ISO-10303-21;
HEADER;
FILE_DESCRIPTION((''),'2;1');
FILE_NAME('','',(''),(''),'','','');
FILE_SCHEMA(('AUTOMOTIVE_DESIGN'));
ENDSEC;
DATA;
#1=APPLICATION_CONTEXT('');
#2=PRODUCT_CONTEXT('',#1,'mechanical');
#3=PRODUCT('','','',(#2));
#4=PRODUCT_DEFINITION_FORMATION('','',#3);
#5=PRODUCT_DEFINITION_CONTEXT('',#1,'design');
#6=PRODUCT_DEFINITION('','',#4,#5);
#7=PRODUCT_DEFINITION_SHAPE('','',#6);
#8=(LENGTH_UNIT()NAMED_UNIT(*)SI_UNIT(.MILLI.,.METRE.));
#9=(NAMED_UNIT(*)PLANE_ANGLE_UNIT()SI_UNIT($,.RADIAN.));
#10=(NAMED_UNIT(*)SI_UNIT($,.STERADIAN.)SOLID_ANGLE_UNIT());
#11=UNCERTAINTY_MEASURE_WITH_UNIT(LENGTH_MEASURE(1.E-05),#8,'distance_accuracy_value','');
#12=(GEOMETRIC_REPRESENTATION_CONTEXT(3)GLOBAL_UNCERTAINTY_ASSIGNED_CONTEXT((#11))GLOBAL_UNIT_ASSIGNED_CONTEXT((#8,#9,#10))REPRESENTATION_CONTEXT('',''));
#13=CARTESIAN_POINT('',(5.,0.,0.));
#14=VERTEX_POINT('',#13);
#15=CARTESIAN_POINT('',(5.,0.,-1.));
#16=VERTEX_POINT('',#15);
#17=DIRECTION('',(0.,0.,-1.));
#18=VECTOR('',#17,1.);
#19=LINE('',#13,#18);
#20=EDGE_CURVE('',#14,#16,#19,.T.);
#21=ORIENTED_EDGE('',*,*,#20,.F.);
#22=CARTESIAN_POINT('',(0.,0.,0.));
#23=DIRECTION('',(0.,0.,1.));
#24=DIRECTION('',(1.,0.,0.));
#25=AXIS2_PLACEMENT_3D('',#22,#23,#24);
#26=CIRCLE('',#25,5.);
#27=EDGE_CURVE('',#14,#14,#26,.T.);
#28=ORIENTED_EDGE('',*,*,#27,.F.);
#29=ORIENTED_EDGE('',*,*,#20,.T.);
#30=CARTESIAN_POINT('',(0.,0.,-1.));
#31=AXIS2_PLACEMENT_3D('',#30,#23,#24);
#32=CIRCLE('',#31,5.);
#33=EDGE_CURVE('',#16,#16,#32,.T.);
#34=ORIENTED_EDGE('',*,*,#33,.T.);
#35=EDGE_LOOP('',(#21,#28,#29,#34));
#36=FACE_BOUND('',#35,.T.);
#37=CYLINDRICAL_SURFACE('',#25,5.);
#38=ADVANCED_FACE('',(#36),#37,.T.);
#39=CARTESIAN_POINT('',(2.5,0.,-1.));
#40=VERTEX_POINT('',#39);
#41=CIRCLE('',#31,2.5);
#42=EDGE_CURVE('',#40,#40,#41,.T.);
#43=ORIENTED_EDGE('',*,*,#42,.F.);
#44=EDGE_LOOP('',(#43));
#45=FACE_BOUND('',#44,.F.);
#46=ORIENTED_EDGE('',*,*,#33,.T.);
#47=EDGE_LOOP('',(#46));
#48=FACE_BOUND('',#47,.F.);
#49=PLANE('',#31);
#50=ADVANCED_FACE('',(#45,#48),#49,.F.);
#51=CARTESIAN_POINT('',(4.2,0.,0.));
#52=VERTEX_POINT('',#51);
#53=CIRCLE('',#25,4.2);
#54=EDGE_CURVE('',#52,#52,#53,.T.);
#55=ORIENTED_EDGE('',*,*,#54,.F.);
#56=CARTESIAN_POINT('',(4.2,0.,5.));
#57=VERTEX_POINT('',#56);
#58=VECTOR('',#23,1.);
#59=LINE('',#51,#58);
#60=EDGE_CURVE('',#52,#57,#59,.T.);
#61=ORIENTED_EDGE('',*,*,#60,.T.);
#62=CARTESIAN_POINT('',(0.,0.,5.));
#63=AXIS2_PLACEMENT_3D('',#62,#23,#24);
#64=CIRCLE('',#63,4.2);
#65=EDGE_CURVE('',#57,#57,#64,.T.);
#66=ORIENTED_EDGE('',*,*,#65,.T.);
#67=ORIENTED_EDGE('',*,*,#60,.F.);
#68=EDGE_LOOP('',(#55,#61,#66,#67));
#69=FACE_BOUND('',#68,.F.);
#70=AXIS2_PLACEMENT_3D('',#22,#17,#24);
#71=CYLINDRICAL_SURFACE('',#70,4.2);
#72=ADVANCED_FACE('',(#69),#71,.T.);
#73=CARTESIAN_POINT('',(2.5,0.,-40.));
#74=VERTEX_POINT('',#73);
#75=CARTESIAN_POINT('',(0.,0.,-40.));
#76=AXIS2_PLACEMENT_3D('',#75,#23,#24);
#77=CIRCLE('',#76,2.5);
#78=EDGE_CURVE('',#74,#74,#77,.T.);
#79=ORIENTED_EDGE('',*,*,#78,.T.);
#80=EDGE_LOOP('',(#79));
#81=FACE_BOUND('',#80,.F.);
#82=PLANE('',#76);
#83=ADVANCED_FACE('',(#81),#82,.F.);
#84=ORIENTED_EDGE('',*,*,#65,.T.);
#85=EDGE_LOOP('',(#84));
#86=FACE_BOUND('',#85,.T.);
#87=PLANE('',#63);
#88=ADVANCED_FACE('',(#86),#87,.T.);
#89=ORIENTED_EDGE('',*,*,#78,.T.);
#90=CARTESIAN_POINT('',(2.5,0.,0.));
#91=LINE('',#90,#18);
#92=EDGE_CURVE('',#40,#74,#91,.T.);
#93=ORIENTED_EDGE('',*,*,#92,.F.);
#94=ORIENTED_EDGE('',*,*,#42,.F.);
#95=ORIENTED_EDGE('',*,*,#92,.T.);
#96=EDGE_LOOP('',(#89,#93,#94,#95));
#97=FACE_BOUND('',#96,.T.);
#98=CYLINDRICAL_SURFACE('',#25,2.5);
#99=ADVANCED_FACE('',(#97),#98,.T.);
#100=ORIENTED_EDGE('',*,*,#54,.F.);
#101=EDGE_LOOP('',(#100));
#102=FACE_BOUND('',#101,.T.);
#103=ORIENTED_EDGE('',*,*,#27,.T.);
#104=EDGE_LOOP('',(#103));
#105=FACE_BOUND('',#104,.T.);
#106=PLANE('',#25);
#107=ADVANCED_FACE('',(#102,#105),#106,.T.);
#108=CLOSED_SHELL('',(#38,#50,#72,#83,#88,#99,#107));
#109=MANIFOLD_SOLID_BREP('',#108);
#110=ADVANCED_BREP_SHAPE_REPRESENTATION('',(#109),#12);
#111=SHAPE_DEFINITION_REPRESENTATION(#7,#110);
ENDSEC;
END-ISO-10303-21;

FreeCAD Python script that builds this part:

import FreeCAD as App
import Part
import Sketcher
from FreeCAD import Vector
Q = App.Units.Quantity

doc = App.newDocument("Part")
body = doc.addObject("PartDesign::Body", "Body")

# Sketch on XY plane
sketch1 = body.newObject("Sketcher::SketchObject", "Sketch")
sketch1.AttachmentSupport = (doc.getObject("XY_Plane"), [""])
sketch1.MapMode = "FlatFace"
sketch1.addGeometry(Part.Circle(Vector(0, 0, 0), Vector(0, 0, 1), 2.5), False)
sketch1.addConstraint(Sketcher.Constraint("Coincident", 0, 3, -1, 1))
sketch1.addConstraint(Sketcher.Constraint("Diameter", 0, Q("5 mm")))
pad1 = body.newObject("PartDesign::Pad", "Pad")
pad1.Profile = sketch1
pad1.Length = 40
pad1.Reversed = True

# Sketch on XY plane
sketch2 = body.newObject("Sketcher::SketchObject", "Sketch001")
sketch2.AttachmentSupport = (doc.getObject("XY_Plane"), [""])
sketch2.MapMode = "FlatFace"
sketch2.addGeometry(Part.Circle(Vector(0, 0, 0), Vector(0, 0, 1), 4.2), False)
sketch2.addConstraint(Sketcher.Constraint("Coincident", 0, 3, -1, 1))
sketch2.addConstraint(Sketcher.Constraint("Diameter", 0, Q("8.4 mm")))
pad2 = body.newObject("PartDesign::Pad", "Pad001")
pad2.Profile = sketch2
pad2.Length = 5

# Sketch on XY plane
sketch3 = body.newObject("Sketcher::SketchObject", "Sketch002")
sketch3.AttachmentSupport = (doc.getObject("XY_Plane"), [""])
sketch3.MapMode = "FlatFace"
sketch3.addGeometry(Part.Circle(Vector(0, 0, 0), Vector(0, 0, 1), 5), False)
sketch3.addConstraint(Sketcher.Constraint("Coincident", 0, 3, -1, 1))
sketch3.addConstraint(Sketcher.Constraint("Diameter", 0, Q("10 mm")))
pad3 = body.newObject("PartDesign::Pad", "Pad002")
pad3.Profile = sketch3
pad3.Length = 1
pad3.Reversed = True

doc.recompute()
